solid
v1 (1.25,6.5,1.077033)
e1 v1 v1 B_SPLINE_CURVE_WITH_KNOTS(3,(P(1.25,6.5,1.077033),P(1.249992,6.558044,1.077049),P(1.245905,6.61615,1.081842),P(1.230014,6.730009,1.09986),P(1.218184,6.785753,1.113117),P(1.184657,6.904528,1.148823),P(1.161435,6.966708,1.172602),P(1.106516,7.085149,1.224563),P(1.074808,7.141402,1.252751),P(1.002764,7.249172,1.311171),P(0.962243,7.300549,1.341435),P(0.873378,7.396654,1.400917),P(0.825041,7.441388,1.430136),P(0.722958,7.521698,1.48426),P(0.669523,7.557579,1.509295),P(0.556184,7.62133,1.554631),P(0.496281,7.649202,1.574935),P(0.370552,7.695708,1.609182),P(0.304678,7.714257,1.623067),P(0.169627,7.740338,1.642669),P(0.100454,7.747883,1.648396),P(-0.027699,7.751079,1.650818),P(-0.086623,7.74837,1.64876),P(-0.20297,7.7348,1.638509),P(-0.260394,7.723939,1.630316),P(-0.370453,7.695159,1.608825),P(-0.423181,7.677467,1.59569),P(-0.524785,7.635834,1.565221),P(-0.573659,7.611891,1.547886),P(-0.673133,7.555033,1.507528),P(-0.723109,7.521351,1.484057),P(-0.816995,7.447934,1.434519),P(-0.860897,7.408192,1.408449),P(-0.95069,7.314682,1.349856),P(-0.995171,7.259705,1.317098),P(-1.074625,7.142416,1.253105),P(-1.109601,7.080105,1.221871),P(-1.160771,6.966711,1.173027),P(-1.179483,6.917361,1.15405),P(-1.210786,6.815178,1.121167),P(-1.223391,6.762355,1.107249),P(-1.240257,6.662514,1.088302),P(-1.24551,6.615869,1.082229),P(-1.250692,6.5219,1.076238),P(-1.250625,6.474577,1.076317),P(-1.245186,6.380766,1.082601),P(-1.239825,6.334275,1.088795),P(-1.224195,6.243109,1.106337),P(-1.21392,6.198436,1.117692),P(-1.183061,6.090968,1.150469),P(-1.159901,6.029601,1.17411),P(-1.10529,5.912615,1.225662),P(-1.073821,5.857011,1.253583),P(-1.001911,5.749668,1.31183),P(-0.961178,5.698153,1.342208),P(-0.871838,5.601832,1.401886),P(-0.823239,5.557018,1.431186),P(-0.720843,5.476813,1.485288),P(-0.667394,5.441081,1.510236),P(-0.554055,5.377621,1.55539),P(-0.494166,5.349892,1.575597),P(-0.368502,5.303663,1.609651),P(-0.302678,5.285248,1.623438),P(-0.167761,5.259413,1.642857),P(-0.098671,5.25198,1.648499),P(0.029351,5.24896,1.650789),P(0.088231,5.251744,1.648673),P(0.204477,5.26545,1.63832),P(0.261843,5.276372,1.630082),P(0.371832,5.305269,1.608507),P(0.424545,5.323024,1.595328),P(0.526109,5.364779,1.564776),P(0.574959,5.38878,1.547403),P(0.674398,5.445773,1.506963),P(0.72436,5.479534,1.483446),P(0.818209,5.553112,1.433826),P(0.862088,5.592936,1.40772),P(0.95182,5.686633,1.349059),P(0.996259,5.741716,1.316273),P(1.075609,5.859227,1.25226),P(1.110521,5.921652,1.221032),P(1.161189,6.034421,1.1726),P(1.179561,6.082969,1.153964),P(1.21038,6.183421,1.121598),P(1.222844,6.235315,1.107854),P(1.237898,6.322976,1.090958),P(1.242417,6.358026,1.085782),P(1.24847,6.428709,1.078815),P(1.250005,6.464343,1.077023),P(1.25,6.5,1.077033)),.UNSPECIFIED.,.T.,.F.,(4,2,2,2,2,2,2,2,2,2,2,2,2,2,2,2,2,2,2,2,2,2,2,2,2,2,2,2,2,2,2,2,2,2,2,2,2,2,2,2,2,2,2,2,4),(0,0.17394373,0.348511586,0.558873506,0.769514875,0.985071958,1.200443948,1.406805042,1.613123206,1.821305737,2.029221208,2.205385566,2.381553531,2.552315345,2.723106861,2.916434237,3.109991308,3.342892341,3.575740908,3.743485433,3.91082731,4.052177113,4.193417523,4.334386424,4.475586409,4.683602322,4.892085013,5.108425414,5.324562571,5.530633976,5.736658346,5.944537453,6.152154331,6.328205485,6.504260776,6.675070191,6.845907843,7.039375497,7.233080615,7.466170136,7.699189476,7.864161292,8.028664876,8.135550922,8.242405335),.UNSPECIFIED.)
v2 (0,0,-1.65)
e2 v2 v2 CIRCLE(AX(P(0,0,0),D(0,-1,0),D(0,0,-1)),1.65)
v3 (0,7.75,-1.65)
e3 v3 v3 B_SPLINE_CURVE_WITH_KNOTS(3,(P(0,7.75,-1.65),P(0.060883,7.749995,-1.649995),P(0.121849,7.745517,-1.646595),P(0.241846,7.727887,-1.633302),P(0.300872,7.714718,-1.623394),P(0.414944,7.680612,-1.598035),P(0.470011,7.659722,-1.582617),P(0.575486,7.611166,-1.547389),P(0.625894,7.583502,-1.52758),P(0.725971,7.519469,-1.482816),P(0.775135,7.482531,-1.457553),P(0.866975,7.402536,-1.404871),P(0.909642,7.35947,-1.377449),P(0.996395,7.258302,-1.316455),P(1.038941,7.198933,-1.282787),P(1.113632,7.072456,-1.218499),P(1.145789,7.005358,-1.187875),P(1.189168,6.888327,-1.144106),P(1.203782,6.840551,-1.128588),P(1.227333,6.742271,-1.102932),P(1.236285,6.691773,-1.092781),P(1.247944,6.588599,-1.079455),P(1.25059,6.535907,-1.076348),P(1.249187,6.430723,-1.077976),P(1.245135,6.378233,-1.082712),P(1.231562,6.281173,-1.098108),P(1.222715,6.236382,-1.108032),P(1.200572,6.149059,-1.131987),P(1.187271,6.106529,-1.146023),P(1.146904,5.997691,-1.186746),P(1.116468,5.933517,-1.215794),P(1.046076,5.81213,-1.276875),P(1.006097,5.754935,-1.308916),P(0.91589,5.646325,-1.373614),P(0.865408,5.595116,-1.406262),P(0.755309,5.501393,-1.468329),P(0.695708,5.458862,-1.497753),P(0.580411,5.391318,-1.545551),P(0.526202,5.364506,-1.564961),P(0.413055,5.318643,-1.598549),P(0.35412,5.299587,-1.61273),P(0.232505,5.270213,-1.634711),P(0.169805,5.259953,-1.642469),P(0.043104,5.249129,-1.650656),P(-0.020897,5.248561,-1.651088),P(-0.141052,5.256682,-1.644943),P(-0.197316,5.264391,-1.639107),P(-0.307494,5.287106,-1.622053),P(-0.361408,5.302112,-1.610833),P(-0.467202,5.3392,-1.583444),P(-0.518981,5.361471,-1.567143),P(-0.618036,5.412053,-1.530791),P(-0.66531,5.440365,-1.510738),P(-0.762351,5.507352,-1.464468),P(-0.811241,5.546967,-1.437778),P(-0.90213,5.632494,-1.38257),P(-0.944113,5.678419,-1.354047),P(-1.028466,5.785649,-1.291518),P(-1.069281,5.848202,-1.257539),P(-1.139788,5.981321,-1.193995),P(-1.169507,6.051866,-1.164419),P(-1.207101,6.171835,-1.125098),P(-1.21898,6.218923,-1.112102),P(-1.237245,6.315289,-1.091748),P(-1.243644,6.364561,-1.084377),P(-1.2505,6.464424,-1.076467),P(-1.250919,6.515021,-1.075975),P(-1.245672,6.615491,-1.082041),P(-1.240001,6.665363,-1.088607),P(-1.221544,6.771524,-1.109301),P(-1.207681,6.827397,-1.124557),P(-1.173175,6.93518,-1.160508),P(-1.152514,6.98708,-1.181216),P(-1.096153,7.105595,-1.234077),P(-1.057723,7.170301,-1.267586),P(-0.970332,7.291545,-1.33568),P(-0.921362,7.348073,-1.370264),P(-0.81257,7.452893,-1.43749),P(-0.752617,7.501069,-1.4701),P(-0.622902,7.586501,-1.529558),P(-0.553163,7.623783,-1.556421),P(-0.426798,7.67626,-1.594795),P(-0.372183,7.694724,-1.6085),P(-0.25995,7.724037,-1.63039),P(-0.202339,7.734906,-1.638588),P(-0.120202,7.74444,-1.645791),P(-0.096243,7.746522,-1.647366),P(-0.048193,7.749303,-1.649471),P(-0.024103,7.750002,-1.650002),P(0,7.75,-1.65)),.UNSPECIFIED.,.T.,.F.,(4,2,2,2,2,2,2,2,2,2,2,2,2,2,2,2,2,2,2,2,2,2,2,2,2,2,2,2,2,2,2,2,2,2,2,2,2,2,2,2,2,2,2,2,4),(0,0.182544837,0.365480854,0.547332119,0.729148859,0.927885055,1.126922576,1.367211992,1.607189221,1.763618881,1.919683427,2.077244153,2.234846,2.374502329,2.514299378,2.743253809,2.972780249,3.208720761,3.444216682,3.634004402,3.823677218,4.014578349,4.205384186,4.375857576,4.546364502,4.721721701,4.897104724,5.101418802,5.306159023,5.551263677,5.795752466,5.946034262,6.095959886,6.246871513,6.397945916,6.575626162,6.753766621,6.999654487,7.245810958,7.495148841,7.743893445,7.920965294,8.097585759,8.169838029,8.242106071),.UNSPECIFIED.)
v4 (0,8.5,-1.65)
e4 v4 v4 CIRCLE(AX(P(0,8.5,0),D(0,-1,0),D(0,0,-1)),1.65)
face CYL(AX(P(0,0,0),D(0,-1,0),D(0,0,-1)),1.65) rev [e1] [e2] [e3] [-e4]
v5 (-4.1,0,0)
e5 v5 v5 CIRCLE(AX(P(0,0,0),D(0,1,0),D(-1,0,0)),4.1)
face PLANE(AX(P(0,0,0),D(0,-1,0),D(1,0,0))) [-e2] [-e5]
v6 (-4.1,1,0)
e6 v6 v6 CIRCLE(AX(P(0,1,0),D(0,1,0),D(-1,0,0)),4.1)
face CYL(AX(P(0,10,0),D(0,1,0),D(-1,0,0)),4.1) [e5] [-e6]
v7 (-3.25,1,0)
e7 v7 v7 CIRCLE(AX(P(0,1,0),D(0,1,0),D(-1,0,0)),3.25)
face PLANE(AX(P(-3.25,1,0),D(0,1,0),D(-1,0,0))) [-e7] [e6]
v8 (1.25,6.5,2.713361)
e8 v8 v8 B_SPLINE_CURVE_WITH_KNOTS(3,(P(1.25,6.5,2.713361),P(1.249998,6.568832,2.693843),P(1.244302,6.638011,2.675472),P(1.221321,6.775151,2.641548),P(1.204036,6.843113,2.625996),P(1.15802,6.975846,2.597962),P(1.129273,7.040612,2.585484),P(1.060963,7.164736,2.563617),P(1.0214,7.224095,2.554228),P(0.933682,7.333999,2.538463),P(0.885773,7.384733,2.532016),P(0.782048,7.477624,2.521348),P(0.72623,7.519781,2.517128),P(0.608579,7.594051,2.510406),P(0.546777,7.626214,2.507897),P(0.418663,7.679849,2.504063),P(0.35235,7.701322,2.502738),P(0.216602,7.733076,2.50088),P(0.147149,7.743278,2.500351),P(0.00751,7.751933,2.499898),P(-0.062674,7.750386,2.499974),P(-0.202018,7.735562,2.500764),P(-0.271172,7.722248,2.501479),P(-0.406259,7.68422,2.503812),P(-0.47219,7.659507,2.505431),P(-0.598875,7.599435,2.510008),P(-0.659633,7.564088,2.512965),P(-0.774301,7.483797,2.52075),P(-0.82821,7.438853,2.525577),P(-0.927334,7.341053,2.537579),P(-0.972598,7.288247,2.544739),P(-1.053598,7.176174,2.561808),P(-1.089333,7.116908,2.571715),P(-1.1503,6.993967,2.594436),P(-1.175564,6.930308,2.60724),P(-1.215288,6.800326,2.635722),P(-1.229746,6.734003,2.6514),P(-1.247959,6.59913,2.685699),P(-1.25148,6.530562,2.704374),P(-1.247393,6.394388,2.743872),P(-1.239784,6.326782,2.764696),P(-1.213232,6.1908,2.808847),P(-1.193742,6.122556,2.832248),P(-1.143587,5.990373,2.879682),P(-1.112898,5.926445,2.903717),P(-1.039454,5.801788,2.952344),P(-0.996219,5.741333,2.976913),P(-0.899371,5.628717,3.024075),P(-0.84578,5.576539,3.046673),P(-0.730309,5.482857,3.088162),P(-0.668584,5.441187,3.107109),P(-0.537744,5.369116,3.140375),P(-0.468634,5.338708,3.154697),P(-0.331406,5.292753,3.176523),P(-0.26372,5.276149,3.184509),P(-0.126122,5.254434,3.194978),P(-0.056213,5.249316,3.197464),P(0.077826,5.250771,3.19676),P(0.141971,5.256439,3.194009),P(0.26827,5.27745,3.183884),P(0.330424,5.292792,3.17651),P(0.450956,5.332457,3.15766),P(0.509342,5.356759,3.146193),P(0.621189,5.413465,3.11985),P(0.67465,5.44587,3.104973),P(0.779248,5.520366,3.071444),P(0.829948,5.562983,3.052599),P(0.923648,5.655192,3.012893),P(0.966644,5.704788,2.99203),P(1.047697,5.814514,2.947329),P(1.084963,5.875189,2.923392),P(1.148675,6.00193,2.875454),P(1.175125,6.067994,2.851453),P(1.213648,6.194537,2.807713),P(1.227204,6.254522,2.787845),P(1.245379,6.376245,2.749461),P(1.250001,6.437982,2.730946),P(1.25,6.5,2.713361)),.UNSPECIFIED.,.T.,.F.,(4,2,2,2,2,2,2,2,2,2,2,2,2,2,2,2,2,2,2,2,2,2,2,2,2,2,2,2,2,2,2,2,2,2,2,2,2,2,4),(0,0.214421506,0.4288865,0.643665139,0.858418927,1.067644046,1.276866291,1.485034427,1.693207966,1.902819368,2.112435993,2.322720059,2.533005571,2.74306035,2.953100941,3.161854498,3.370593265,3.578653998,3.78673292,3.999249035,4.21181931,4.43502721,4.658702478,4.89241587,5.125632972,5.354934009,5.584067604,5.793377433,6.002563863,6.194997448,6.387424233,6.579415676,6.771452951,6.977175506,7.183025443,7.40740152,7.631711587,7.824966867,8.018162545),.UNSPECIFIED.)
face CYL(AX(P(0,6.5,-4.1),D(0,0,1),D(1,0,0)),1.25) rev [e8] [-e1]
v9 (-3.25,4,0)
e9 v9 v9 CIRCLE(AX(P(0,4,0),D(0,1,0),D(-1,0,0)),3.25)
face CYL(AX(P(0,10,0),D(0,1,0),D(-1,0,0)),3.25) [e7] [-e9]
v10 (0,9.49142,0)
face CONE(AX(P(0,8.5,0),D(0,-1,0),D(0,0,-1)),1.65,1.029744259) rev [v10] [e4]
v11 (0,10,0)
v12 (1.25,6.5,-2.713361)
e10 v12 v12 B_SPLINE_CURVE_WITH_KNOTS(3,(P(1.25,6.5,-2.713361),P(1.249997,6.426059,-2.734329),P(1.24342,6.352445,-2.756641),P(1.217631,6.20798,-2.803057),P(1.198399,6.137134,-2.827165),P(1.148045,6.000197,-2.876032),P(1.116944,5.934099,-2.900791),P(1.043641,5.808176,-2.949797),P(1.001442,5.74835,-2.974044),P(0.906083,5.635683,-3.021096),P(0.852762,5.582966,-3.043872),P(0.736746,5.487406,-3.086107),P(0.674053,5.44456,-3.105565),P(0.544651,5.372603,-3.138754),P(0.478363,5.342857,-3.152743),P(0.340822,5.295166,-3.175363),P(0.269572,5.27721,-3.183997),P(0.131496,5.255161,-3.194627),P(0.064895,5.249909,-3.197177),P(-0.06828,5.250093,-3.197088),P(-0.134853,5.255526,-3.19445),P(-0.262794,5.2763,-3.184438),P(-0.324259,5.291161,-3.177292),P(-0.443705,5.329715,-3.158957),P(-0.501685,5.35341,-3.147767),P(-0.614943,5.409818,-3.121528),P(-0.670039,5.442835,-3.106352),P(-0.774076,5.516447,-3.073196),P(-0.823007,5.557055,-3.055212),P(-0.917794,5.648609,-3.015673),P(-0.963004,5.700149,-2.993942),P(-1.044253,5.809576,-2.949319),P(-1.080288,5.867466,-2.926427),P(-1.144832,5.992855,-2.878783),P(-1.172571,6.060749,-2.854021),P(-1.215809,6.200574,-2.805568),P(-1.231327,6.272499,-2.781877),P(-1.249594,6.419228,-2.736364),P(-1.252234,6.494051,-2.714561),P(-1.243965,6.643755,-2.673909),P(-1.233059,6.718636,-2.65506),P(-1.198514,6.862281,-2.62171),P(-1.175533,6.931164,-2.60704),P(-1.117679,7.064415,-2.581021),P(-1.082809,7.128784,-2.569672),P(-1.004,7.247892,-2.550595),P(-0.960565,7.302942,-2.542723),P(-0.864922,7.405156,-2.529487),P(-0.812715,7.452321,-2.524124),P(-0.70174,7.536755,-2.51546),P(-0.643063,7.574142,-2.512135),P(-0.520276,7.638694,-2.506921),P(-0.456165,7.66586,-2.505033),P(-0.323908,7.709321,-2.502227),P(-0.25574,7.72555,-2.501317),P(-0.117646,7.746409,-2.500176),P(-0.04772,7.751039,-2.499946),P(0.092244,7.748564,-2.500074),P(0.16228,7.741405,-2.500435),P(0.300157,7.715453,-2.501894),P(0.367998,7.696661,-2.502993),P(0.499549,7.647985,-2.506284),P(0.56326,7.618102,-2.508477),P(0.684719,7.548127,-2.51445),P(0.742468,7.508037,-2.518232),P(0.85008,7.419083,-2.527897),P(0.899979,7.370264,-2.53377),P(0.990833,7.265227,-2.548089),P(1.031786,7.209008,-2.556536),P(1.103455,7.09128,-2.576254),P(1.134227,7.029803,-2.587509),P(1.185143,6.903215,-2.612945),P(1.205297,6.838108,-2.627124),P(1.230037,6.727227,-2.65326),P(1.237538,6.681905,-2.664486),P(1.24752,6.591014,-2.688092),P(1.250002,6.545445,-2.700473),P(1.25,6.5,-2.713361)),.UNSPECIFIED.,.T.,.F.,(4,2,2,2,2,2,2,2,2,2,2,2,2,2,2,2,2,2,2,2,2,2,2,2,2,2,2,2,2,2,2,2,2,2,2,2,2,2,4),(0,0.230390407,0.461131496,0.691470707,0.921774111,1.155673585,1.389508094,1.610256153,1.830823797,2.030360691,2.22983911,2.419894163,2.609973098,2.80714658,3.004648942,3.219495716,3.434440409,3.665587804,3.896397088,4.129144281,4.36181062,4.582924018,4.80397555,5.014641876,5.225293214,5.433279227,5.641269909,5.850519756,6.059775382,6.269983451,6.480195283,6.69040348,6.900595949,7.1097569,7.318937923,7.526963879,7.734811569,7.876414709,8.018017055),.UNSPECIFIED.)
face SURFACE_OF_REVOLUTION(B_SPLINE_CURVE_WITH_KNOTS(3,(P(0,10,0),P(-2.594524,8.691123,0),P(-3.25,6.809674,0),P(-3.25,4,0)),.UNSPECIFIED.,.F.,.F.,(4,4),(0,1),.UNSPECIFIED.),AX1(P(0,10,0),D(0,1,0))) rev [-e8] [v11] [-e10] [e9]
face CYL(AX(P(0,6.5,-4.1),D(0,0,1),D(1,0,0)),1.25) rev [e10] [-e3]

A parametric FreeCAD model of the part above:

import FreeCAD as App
import Part
import Sketcher

V = App.Vector
Q = App.Units.Quantity

doc = App.newDocument("Part")
body = doc.addObject("PartDesign::Body", "Body")

# Sketch on XY plane
sketch1 = body.newObject("Sketcher::SketchObject", "Sketch")
sketch1.AttachmentSupport = (doc.getObject("XY_Plane"), [""])
sketch1.MapMode = "FlatFace"
sketch1.addGeometry(Part.LineSegment(V(-4.1, 0, 0), V(0, 0, 0)), False)
sketch1.addGeometry(Part.LineSegment(V(0, 0, 0), V(0, 10, 0)), False)
sketch1.addGeometry(Part.BSplineCurve([V(-3.25, 4, 0), V(-3.25, 6.809674, 0), V(-2.594524, 8.691123, 0), V(0, 10, 0)], [4, 4], [0, 1], False, 3, [1, 1, 1, 1], False), False)
sketch1.addGeometry(Part.LineSegment(V(-3.25, 4, 0), V(-3.25, 1, 0)), False)
sketch1.addGeometry(Part.LineSegment(V(-3.25, 1, 0), V(-4.1, 1, 0)), False)
sketch1.addGeometry(Part.LineSegment(V(-4.1, 1, 0), V(-4.1, 0, 0)), False)
sketch1.addConstraint(Sketcher.Constraint("Block", 2))
sketch1.addConstraint(Sketcher.Constraint("Coincident", 0, 2, 1, 1))
sketch1.addConstraint(Sketcher.Constraint("Coincident", 1, 2, 2, 2))
sketch1.addConstraint(Sketcher.Constraint("Coincident", 2, 1, 3, 1))
sketch1.addConstraint(Sketcher.Constraint("Coincident", 3, 2, 4, 1))
sketch1.addConstraint(Sketcher.Constraint("Coincident", 4, 2, 5, 1))
sketch1.addConstraint(Sketcher.Constraint("Coincident", 5, 2, 0, 1))
sketch1.addConstraint(Sketcher.Constraint("Horizontal", 0))
sketch1.addConstraint(Sketcher.Constraint("Vertical", 1))
sketch1.addConstraint(Sketcher.Constraint("Vertical", 3))
sketch1.addConstraint(Sketcher.Constraint("Horizontal", 4))
sketch1.addConstraint(Sketcher.Constraint("Vertical", 5))
sketch1.addConstraint(Sketcher.Constraint("PointOnObject", 5, 2, -1))
sketch1.addConstraint(Sketcher.Constraint("DistanceY", 3, 2, 3, 1, Q("3 mm")))
sketch1.addConstraint(Sketcher.Constraint("DistanceX", 0, 1, 0, 2, Q("4.1 mm")))
revolution = body.newObject("PartDesign::Revolution", "Revolution")
revolution.Profile = sketch1
revolution.ReferenceAxis = (sketch1, ["V_Axis"])
revolution.Angle = 360

# Sketch on XZ plane
sketch2 = body.newObject("Sketcher::SketchObject", "Sketch001")
sketch2.AttachmentSupport = (doc.getObject("XZ_Plane"), [""])
sketch2.MapMode = "FlatFace"
sketch2.addGeometry(Part.Circle(V(0, 0, 0), V(0, 0, 1), 1.65), False)
sketch2.addConstraint(Sketcher.Constraint("Coincident", 0, 3, -1, 1))
sketch2.addConstraint(Sketcher.Constraint("Diameter", 0, Q("3.3 mm")))
doc.recompute()
hole = body.newObject("PartDesign::Hole", "Hole")
hole.Profile = sketch2
hole.ThreadType = "None"
hole.Diameter = 3.3
hole.DepthType = "Dimension"
hole.Depth = 8.5
hole.DrillPoint = "Angled"
hole.DrillPointAngle = 118

# Sketch on XY plane
sketch3 = body.newObject("Sketcher::SketchObject", "Sketch002")
sketch3.AttachmentSupport = (doc.getObject("XY_Plane"), [""])
sketch3.MapMode = "FlatFace"
sketch3.addGeometry(Part.Circle(V(0, 6.5, 0), V(0, 0, 1), 1.25), False)
sketch3.addConstraint(Sketcher.Constraint("PointOnObject", 0, 3, -2))
sketch3.addConstraint(Sketcher.Constraint("Diameter", 0, Q("2.5 mm")))
sketch3.addConstraint(Sketcher.Constraint("DistanceY", -1, 1, 0, 3, Q("6.5 mm")))
pocket1 = body.newObject("PartDesign::Pocket", "Pocket")
pocket1.Profile = sketch3
pocket1.Type = "ThroughAll"
pocket1.Midplane = True

doc.recompute()
